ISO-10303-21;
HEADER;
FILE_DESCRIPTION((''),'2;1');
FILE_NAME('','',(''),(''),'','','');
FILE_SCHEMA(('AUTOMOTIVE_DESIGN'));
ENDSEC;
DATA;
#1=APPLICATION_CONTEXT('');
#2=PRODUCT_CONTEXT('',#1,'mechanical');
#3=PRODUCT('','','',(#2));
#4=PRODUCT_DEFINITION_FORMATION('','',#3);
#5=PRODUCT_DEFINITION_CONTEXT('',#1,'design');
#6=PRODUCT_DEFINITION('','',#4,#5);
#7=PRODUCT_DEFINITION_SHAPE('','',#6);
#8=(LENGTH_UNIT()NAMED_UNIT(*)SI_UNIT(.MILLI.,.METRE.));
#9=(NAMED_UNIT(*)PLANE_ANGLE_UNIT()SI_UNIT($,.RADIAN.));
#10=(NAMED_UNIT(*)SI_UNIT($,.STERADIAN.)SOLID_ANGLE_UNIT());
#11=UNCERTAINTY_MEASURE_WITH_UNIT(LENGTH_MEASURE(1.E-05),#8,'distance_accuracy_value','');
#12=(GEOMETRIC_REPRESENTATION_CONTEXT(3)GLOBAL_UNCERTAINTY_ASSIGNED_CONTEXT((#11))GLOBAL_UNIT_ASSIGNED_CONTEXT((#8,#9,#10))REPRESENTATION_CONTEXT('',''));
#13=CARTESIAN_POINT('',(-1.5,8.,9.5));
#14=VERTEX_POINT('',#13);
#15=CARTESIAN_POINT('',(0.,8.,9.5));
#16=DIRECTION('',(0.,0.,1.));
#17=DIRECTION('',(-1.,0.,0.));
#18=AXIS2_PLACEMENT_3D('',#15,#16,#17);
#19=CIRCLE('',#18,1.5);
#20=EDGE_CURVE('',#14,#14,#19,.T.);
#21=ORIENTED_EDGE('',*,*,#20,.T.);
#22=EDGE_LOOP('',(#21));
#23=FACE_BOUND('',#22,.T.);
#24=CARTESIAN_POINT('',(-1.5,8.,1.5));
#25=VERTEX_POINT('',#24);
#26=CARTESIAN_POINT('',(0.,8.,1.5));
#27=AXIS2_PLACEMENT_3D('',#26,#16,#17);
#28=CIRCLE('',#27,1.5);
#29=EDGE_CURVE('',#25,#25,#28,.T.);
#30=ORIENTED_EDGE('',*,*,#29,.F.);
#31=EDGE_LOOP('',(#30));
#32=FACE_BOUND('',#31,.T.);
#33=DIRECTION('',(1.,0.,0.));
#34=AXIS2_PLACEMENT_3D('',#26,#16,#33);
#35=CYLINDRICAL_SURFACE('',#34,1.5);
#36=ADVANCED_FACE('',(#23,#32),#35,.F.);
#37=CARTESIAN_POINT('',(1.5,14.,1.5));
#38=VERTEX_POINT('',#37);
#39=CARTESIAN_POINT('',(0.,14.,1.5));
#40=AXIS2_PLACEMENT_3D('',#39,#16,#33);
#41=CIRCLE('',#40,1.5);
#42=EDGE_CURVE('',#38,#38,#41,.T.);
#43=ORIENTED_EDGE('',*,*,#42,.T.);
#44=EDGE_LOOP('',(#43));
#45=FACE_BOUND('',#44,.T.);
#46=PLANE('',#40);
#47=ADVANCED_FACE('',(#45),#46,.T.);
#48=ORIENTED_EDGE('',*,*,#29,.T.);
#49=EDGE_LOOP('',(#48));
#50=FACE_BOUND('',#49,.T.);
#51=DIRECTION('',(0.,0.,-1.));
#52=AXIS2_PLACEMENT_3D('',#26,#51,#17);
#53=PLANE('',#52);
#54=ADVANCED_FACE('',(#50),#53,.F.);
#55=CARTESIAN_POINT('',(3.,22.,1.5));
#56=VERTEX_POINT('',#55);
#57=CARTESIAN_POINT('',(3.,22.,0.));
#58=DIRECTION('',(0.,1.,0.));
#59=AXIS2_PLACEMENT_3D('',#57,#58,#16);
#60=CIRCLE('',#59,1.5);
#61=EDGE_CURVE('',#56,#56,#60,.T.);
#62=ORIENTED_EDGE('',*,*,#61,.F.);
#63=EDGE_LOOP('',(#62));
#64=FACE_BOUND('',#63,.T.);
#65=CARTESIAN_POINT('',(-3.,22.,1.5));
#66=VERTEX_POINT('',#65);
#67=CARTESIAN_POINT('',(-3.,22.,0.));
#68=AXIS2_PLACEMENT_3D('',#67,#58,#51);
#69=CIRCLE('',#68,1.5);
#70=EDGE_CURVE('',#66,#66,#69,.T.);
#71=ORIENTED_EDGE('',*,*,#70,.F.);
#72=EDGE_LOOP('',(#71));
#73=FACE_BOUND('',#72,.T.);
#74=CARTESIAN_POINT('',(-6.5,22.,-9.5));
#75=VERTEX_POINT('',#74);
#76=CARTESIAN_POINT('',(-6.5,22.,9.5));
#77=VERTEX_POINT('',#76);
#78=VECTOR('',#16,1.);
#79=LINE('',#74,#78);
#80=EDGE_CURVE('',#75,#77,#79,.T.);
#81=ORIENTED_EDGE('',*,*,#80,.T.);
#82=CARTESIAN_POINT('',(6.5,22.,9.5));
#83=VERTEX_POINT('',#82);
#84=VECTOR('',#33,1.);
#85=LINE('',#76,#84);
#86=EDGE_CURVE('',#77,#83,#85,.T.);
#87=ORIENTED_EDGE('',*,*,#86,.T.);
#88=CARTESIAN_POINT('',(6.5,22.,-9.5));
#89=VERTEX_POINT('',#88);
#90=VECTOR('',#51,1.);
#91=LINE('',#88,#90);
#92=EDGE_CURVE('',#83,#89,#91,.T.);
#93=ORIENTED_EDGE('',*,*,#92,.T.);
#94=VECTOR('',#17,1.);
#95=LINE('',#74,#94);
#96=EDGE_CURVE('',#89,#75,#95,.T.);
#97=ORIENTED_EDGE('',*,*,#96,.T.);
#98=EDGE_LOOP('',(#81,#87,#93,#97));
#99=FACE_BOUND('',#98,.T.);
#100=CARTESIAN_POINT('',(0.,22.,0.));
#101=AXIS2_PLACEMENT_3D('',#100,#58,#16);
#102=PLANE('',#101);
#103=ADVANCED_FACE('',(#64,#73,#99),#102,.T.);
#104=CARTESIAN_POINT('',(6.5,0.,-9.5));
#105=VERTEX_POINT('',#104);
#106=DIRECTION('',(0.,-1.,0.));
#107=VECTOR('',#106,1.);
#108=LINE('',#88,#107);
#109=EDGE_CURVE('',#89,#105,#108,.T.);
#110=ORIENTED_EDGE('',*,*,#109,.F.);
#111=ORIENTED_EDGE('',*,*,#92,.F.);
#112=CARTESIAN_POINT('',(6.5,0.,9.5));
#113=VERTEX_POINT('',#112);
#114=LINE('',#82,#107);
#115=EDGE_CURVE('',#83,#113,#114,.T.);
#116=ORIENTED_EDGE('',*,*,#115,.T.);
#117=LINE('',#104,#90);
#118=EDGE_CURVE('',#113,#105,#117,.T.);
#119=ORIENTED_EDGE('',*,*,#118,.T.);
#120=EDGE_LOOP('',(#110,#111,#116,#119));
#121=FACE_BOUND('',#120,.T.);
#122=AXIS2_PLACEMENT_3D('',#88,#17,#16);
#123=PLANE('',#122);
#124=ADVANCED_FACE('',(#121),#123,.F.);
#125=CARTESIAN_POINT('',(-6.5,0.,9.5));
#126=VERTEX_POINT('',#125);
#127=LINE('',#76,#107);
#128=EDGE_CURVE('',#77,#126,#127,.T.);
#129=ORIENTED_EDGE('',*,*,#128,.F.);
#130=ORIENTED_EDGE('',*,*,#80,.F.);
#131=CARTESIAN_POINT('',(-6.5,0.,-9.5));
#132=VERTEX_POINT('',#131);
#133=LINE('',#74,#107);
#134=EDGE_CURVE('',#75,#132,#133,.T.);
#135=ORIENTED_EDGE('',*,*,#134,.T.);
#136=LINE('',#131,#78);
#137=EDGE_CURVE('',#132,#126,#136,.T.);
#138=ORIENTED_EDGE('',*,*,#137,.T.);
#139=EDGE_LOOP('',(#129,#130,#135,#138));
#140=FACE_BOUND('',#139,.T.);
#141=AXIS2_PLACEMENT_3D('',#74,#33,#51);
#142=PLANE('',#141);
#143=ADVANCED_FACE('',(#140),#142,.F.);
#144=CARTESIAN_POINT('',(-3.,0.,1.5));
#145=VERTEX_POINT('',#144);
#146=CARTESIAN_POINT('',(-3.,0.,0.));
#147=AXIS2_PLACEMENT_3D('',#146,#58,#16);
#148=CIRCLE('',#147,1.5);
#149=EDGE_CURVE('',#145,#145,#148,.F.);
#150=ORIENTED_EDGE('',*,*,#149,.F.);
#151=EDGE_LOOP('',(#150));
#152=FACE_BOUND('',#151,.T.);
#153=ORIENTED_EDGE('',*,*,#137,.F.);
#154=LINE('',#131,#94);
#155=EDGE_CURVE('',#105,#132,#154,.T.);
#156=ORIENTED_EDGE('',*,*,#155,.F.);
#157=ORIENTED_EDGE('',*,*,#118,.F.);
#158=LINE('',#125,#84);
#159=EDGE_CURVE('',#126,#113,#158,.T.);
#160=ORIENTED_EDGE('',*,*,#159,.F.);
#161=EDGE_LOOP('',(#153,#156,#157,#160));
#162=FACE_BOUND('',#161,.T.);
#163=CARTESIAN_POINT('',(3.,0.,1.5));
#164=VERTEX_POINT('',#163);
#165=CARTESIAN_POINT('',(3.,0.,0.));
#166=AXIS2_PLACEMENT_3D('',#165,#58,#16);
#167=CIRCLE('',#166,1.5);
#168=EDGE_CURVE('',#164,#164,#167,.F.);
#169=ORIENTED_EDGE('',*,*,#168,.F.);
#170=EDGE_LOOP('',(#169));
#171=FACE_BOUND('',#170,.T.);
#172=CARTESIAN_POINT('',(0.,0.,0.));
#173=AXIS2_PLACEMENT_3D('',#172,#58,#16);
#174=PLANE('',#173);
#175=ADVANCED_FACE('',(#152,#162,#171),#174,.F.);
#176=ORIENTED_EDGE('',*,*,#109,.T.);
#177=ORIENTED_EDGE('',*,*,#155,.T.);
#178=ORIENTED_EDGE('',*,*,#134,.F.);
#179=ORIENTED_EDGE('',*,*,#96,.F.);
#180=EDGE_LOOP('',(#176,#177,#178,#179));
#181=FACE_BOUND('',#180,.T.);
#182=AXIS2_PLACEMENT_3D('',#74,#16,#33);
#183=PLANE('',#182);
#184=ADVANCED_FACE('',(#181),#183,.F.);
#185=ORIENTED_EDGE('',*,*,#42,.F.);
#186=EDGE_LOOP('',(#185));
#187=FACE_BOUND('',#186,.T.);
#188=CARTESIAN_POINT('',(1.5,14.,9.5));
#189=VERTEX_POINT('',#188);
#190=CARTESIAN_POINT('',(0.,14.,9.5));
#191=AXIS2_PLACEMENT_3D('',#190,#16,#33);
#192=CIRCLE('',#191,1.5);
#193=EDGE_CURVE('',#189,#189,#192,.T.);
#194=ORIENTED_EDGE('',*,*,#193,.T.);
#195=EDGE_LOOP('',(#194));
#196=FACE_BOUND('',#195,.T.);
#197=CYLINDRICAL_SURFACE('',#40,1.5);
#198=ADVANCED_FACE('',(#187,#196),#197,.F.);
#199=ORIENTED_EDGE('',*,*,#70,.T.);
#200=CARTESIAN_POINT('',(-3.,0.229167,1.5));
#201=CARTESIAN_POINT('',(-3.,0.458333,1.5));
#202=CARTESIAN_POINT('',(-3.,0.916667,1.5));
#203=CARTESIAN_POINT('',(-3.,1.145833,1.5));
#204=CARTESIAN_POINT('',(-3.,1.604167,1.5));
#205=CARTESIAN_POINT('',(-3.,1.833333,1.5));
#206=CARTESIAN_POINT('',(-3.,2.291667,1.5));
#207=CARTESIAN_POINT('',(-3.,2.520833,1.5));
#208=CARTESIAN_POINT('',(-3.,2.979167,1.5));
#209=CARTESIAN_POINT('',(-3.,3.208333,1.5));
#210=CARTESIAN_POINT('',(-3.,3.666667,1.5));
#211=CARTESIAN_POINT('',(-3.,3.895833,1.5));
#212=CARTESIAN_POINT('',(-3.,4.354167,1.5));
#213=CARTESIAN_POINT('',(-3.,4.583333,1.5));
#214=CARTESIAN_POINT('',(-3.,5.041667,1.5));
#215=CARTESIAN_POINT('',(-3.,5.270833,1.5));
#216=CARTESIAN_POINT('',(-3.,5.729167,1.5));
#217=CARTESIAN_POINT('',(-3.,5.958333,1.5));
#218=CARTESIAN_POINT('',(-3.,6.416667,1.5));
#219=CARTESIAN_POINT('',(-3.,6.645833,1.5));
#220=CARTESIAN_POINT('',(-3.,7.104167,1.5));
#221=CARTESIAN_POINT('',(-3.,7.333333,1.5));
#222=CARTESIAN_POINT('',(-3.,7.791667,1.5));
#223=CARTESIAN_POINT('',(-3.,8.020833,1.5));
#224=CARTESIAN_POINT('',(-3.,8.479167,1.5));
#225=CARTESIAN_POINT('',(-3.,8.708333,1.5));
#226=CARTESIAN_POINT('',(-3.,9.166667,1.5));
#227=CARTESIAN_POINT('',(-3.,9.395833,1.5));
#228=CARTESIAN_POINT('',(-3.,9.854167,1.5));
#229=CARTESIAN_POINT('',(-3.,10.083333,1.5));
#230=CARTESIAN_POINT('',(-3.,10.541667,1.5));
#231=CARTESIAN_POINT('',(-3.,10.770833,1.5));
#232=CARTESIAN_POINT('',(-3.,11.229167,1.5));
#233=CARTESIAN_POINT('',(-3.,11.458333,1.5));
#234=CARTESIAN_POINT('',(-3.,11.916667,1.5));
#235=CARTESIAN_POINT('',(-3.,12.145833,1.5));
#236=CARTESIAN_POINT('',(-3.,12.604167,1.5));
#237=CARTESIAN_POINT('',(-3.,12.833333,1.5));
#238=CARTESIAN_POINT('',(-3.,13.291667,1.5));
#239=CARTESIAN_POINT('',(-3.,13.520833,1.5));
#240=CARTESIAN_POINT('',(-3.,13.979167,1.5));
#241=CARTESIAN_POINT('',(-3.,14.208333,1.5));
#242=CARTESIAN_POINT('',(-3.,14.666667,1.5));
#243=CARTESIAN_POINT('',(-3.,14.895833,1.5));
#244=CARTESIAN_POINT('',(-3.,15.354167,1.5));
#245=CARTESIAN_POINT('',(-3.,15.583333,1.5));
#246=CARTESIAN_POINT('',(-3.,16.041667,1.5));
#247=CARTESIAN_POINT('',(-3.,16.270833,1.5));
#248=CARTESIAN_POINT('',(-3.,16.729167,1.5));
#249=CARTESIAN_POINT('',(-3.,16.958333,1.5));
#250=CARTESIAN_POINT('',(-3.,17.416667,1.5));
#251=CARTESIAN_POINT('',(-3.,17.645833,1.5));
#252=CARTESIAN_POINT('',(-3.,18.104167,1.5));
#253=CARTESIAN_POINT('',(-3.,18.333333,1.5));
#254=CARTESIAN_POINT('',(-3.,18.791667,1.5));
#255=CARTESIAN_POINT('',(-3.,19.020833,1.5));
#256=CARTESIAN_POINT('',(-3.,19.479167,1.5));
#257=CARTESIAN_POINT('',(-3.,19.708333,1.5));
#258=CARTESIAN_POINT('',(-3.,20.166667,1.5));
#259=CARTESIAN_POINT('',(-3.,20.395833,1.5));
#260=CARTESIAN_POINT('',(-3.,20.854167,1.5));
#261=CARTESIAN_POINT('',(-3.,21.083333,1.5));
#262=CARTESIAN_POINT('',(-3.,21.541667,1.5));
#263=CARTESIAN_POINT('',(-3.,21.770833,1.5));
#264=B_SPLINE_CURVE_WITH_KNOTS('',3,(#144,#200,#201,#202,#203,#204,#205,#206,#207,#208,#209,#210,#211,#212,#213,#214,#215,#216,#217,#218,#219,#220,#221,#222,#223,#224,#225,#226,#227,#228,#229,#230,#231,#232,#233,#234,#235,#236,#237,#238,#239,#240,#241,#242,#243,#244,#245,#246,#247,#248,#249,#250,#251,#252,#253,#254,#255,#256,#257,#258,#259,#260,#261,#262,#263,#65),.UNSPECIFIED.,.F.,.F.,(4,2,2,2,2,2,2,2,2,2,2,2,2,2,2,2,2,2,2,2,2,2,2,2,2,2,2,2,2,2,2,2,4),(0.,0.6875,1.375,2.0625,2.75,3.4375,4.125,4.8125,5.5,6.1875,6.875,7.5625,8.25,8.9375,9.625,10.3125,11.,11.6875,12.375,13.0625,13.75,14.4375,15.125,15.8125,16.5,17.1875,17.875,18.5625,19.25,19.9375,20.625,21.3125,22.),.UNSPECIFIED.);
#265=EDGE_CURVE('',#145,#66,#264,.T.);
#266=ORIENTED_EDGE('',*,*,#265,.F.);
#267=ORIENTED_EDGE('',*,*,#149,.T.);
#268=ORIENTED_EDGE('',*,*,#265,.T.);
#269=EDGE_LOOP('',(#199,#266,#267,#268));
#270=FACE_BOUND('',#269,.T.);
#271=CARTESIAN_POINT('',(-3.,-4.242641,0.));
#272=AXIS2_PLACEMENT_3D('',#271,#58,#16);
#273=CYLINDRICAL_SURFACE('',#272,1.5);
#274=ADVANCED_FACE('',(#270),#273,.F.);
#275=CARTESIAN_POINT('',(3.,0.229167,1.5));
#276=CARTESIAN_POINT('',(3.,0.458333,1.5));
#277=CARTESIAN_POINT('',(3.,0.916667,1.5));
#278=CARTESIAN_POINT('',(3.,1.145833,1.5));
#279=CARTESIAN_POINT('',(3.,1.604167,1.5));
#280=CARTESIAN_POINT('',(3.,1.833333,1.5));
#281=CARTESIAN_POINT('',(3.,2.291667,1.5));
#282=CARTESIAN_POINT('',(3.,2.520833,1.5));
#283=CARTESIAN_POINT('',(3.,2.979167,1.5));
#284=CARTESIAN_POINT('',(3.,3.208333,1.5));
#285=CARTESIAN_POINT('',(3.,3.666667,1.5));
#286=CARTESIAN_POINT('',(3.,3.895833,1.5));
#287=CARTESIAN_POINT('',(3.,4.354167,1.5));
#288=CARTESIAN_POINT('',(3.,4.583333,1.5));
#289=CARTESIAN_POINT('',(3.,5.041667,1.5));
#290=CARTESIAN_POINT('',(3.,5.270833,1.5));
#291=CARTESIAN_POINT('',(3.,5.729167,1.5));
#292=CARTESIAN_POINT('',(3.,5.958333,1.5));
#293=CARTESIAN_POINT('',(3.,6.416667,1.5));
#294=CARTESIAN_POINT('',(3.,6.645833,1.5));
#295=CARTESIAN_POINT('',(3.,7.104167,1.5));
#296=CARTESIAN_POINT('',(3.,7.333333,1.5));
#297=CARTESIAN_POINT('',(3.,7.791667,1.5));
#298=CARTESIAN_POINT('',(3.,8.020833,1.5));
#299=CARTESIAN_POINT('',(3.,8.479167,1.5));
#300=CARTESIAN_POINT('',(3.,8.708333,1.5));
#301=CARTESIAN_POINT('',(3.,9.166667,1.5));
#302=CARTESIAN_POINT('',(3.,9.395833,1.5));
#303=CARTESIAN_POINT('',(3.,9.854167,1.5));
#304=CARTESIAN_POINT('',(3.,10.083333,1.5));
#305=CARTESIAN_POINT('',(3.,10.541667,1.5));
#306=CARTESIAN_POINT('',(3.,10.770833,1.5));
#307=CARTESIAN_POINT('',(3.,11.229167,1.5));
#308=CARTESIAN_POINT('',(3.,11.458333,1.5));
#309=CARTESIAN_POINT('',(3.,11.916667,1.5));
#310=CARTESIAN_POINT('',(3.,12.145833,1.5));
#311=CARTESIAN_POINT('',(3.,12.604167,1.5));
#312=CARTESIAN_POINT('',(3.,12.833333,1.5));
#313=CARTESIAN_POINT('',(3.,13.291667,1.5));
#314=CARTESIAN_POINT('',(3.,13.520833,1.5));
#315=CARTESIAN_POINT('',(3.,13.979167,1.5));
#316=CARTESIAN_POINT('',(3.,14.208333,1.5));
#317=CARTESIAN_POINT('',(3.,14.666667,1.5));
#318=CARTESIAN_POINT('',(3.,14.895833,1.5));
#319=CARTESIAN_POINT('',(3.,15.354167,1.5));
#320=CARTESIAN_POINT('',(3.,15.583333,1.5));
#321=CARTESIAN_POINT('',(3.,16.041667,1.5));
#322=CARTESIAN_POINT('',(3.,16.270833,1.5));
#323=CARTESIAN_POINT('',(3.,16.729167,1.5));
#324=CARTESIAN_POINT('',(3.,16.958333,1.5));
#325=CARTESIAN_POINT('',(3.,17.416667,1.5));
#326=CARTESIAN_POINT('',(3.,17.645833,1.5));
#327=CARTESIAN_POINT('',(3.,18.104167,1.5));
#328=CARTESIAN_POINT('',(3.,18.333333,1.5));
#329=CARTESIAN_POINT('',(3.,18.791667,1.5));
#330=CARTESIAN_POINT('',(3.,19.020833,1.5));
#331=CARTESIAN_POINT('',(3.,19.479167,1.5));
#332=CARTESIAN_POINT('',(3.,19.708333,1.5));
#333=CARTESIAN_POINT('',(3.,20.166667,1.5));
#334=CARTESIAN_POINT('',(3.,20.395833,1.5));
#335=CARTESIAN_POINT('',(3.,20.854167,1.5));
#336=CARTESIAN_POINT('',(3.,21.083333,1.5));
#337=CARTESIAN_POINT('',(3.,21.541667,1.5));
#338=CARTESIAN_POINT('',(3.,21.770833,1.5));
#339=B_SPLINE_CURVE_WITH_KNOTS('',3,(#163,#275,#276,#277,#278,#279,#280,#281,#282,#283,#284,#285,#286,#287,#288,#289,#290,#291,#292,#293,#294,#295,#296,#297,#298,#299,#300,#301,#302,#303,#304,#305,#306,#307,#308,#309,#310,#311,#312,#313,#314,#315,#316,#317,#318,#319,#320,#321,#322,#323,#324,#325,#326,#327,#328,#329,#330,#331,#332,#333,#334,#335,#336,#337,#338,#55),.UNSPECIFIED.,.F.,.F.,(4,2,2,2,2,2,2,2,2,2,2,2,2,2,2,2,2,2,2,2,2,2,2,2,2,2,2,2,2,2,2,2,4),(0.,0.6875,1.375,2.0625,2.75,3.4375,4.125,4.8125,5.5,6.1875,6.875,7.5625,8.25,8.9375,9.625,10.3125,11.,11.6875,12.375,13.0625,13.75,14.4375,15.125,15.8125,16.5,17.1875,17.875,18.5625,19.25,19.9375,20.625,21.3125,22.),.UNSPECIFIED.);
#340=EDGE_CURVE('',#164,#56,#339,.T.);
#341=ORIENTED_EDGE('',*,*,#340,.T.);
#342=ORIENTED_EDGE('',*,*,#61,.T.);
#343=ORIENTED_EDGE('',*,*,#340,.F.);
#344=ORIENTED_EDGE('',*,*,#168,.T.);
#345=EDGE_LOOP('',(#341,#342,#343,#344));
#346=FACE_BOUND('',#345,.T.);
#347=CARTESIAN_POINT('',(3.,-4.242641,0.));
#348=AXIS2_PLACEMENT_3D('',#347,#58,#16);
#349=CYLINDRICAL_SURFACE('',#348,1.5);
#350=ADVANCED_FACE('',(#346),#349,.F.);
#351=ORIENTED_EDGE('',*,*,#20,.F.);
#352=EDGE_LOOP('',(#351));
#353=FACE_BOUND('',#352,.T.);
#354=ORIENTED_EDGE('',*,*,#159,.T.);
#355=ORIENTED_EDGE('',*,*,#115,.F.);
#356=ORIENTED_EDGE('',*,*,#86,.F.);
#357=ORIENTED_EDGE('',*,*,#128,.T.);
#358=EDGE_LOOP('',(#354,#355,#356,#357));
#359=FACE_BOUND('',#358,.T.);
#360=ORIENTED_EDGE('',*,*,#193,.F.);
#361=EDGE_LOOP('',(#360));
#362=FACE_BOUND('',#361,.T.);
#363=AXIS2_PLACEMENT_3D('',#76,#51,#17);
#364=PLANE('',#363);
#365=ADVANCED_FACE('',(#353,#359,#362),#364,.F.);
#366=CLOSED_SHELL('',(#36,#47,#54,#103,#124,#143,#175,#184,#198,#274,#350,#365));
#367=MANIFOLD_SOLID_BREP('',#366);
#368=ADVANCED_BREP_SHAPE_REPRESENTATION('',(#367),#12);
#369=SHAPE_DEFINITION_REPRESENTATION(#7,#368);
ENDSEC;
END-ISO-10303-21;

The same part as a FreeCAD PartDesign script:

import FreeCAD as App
import Part
import Sketcher
from FreeCAD import Vector

doc = App.newDocument("Part")
params = doc.addObject("Spreadsheet::Sheet", "Params")
for row, (alias, value) in enumerate([
    ("sketch1_width", "13 mm"),
    ("sketch1_height", "19 mm"),
    ("pad1_length", "22 mm"),
    ("sketch2_diameter", "3 mm"),
    ("pocket1_length", "8 mm"),
    ("sketch3_diameter", "3 mm"),
    ("pocket2_length", "22 mm"),
], start=1):
    params.set(f"A{row}", alias)
    params.set(f"B{row}", "=" + value)
    params.setAlias(f"B{row}", alias)

body = doc.addObject("PartDesign::Body", "Body")

sketch1 = body.newObject("Sketcher::SketchObject", "Sketch")
sketch1.AttachmentSupport = (doc.getObject("XZ_Plane"), [""])
sketch1.MapMode = "FlatFace"
sketch1.addGeometry([
    Part.LineSegment(Vector(-6, -10, 0), Vector(-6, 10, 0)),
    Part.LineSegment(Vector(-6, 10, 0), Vector(6, 10, 0)),
    Part.LineSegment(Vector(6, 10, 0), Vector(6, -10, 0)),
    Part.LineSegment(Vector(6, -10, 0), Vector(-6, -10, 0)),
], False)
sketch1.addConstraint([
    Sketcher.Constraint("Coincident", 0, 2, 1, 1),
    Sketcher.Constraint("Coincident", 1, 2, 2, 1),
    Sketcher.Constraint("Coincident", 2, 2, 3, 1),
    Sketcher.Constraint("Coincident", 3, 2, 0, 1),
    Sketcher.Constraint("Vertical", 0),
    Sketcher.Constraint("Horizontal", 1),
    Sketcher.Constraint("Vertical", 2),
    Sketcher.Constraint("Horizontal", 3),
    Sketcher.Constraint("Symmetric", 0, 2, 2, 2, -1, 1),
    Sketcher.Constraint("DistanceX", 1, 1, 1, 2, 13.0),
    Sketcher.Constraint("DistanceY", 0, 1, 0, 2, 19.0),
])
sketch1.setExpression("Constraints[9]", "Params.sketch1_width")
sketch1.setExpression("Constraints[10]", "Params.sketch1_height")
pad1 = body.newObject("PartDesign::Pad", "Pad")
pad1.Profile = sketch1
pad1.setExpression("Length", "Params.pad1_length")
pad1.Reversed = True

sketch2 = body.newObject("Sketcher::SketchObject", "Sketch001")
sketch2.AttachmentSupport = (doc.getObject("XY_Plane"), [""])
sketch2.MapMode = "FlatFace"
sketch2.AttachmentOffset = App.Placement(Vector(0, 0, 9.5), App.Rotation())
sketch2.addGeometry([
    Part.Circle(Vector(0, 14, 0), Vector(0, 0, 1), 1.5),
    Part.Circle(Vector(0, 8, 0), Vector(0, 0, 1), 1.5),
], False)
sketch2.addConstraint([
    Sketcher.Constraint("Equal", 0, 1),
    Sketcher.Constraint("PointOnObject", 0, 3, -2),
    Sketcher.Constraint("PointOnObject", 1, 3, -2),
    Sketcher.Constraint("Diameter", 0, 3.0),
    Sketcher.Constraint("DistanceY", -1, 1, 0, 3, 14.0),
    Sketcher.Constraint("DistanceY", -1, 1, 1, 3, 8.0),
])
sketch2.setExpression("Constraints[3]", "Params.sketch2_diameter")
pocket1 = body.newObject("PartDesign::Pocket", "Pocket")
pocket1.Profile = sketch2
pocket1.setExpression("Length", "Params.pocket1_length")

sketch3 = body.newObject("Sketcher::SketchObject", "Sketch002")
sketch3.AttachmentSupport = (doc.getObject("XZ_Plane"), [""])
sketch3.MapMode = "FlatFace"
sketch3.AttachmentOffset = App.Placement(Vector(0, 0, -22), App.Rotation())
sketch3.addGeometry([
    Part.Circle(Vector(3, 0, 0), Vector(0, 0, 1), 1.5),
    Part.Circle(Vector(-3, 0, 0), Vector(0, 0, 1), 1.5),
], False)
sketch3.addConstraint([
    Sketcher.Constraint("Equal", 0, 1),
    Sketcher.Constraint("Symmetric", 0, 3, 1, 3, -1, 1),
    Sketcher.Constraint("PointOnObject", 0, 3, -1),
    Sketcher.Constraint("Diameter", 0, 3.0),
    Sketcher.Constraint("DistanceX", -1, 1, 0, 3, 3.0),
])
sketch3.setExpression("Constraints[3]", "Params.sketch3_diameter")
pocket2 = body.newObject("PartDesign::Pocket", "Pocket001")
pocket2.Profile = sketch3
pocket2.setExpression("Length", "Params.pocket2_length")
pocket2.Reversed = True

doc.recompute()
